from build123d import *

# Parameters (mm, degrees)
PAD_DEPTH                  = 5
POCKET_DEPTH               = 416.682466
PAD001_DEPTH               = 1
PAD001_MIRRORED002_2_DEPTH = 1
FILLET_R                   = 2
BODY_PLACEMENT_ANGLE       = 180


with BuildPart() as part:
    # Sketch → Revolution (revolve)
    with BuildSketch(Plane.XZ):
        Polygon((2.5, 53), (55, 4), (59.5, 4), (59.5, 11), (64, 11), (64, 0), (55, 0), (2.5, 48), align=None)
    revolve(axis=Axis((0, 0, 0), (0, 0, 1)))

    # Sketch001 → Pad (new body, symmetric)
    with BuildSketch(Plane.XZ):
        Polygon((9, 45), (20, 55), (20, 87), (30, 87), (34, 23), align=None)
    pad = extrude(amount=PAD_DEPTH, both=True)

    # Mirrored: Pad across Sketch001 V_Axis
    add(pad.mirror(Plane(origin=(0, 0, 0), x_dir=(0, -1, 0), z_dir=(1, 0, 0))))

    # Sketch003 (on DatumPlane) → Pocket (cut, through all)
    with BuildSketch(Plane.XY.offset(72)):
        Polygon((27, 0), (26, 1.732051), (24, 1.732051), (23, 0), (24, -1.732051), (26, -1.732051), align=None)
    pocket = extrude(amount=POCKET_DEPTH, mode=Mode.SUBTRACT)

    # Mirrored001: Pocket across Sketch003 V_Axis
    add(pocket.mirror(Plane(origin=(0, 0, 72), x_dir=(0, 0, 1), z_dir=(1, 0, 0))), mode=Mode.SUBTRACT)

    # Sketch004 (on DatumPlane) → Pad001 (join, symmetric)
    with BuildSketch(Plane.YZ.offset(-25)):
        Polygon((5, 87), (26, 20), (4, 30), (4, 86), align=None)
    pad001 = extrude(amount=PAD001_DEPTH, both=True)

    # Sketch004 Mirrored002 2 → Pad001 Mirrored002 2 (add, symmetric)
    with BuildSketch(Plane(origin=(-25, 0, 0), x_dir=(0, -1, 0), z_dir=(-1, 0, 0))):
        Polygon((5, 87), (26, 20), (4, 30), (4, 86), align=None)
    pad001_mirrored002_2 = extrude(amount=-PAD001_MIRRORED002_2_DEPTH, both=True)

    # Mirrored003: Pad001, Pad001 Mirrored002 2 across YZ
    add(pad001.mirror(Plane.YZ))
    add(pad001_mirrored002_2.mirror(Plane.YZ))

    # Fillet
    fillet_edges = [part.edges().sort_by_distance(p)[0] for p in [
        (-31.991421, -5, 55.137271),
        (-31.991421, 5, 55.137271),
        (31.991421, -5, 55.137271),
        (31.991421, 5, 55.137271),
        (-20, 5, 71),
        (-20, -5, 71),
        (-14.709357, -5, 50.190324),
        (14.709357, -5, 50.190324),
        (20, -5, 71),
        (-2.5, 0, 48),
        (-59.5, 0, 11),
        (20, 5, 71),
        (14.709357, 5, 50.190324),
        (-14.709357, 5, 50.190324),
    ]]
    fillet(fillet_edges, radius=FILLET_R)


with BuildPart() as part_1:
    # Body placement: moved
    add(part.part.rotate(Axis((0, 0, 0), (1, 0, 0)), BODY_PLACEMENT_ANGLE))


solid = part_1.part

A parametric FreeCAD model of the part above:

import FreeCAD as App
import Part
import Sketcher

V = App.Vector
Q = App.Units.Quantity


def edges_at(feature, points):
    """Names of the edges that pass closest to the given points."""
    edges = feature.Shape.Edges
    near = lambda p: min(range(len(edges)), key=lambda i: edges[i].distToShape(Part.Vertex(*p))[0])
    return sorted({f"Edge{near(p) + 1}" for p in points})


def add_polygon(sketch, points):
    """Adds a closed chain of lines whose ends are joined by coincident constraints."""
    first, n = sketch.GeometryCount, len(points)
    for a, b in zip(points, points[1:] + points[:1]):
        sketch.addGeometry(Part.LineSegment(App.Vector(*a, 0), App.Vector(*b, 0)), False)
    for i in range(n):
        sketch.addConstraint(Sketcher.Constraint("Coincident", first + i, 2, first + (i + 1) % n, 1))

doc = App.newDocument("Part")
body = doc.addObject("PartDesign::Body", "Body")

sketch1 = body.newObject("Sketcher::SketchObject", "Sketch")
sketch1.AttachmentSupport = (doc.getObject("XZ_Plane"), [""])
sketch1.MapMode = "FlatFace"
add_polygon(sketch1, [(55, 4), (2.5, 53), (2.5, 48), (55, 0), (64, 0), (64, 11), (59.5, 11), (59.5, 4)])
sketch1.addConstraint(Sketcher.Constraint("Vertical", 1))
sketch1.addConstraint(Sketcher.Constraint("Horizontal", 3))
sketch1.addConstraint(Sketcher.Constraint("Vertical", 4))
sketch1.addConstraint(Sketcher.Constraint("Horizontal", 5))
sketch1.addConstraint(Sketcher.Constraint("Vertical", 6))
sketch1.addConstraint(Sketcher.Constraint("Horizontal", 7))
sketch1.addConstraint(Sketcher.Constraint("PointOnObject", 2, 2, -1))
sketch1.addConstraint(Sketcher.Constraint("Vertical", 2, 2, 7, 2))
sketch1.addConstraint(Sketcher.Constraint("Equal", 5, 7))
sketch1.addConstraint(Sketcher.Constraint("DistanceX", 3, 1, 3, 2, 9.0))
sketch1.addConstraint(Sketcher.Constraint("DistanceY", 1, 2, 1, 1, 5.0))
sketch1.addConstraint(Sketcher.Constraint("DistanceY", 4, 1, 4, 2, 11.0))
sketch1.addConstraint(Sketcher.Constraint("DistanceY", 6, 2, 6, 1, 7.0))
sketch1.addConstraint(Sketcher.Constraint("DistanceY", -1, 1, 0, 2, 53.0))
sketch1.addConstraint(Sketcher.Constraint("DistanceX", -1, 1, 2, 2, 55.0))
sketch1.addConstraint(Sketcher.Constraint("DistanceX", 1, 2, 5, 2, 57.0))
revolution = body.newObject("PartDesign::Revolution", "Revolution")
revolution.Profile = sketch1
revolution.ReferenceAxis = (sketch1, ["V_Axis"])
revolution.Angle = 360

sketch2 = body.newObject("Sketcher::SketchObject", "Sketch001")
sketch2.AttachmentSupport = (doc.getObject("XZ_Plane"), [""])
sketch2.MapMode = "FlatFace"
add_polygon(sketch2, [(20, 55), (9, 45), (34, 23), (30, 87), (20, 87)])
sketch2.addConstraint(Sketcher.Constraint("Horizontal", 3))
sketch2.addConstraint(Sketcher.Constraint("Vertical", 4))
sketch2.addConstraint(Sketcher.Constraint("DistanceX", 3, 2, 3, 1, 10.0))
sketch2.addConstraint(Sketcher.Constraint("DistanceY", 4, 2, 4, 1, 32.0))
sketch2.addConstraint(Sketcher.Constraint("DistanceX", -1, 1, 0, 2, 9.0))
sketch2.addConstraint(Sketcher.Constraint("DistanceY", -1, 1, 0, 2, 45.0))
sketch2.addConstraint(Sketcher.Constraint("DistanceX", -1, 1, 1, 2, 34.0))
sketch2.addConstraint(Sketcher.Constraint("DistanceY", -1, 1, 1, 2, 23.0))
sketch2.addConstraint(Sketcher.Constraint("DistanceX", -1, 1, 2, 2, 30.0))
sketch2.addConstraint(Sketcher.Constraint("DistanceY", -1, 1, 2, 2, 87.0))
pad1 = body.newObject("PartDesign::Pad", "Pad")
pad1.Profile = sketch2
pad1.Length = 10
pad1.Midplane = True
doc.recompute()

mirrored = body.newObject("PartDesign::Mirrored", "Mirrored")
mirrored.Originals = [pad1]
mirrored.MirrorPlane = (doc.getObject("YZ_Plane"), [""])
body.Tip = mirrored

sketch3 = body.newObject("Sketcher::SketchObject", "Sketch002")
sketch3.AttachmentSupport = (doc.getObject("XY_Plane"), [""])
sketch3.MapMode = "FlatFace"
sketch3.AttachmentOffset = App.Placement(V(0, 0, 72), App.Rotation())
add_polygon(sketch3, [(27, 0), (26, 1.7), (24, 1.7), (23, 0), (24, -1.7), (26, -1.7)])
sketch3.addConstraint(Sketcher.Constraint("Horizontal", 1))
sketch3.addConstraint(Sketcher.Constraint("Horizontal", 4))
sketch3.addConstraint(Sketcher.Constraint("Symmetric", 1, 2, 3, 2, -1))
sketch3.addConstraint(Sketcher.Constraint("PointOnObject", 2, 2, -1))
sketch3.addConstraint(Sketcher.Constraint("PointOnObject", 5, 2, -1))
sketch3.addConstraint(Sketcher.Constraint("Parallel", 0, 3))
sketch3.addConstraint(Sketcher.Constraint("Parallel", 2, 5))
sketch3.addConstraint(Sketcher.Constraint("DistanceX", 1, 2, 1, 1, 2.0))
sketch3.addConstraint(Sketcher.Constraint("Angle", 0, Q("119.999997 deg")))
sketch3.addConstraint(Sketcher.Constraint("Distance", 0, 2.0))
sketch3.addConstraint(Sketcher.Constraint("DistanceX", -1, 1, 0, 2, 26.0))
pocket1 = body.newObject("PartDesign::Pocket", "Pocket")
pocket1.Profile = sketch3
pocket1.Type = "ThroughAll"
pocket1.Reversed = True
doc.recompute()

mirrored2 = body.newObject("PartDesign::Mirrored", "Mirrored001")
mirrored2.Originals = [pocket1]
mirrored2.MirrorPlane = (doc.getObject("YZ_Plane"), [""])
body.Tip = mirrored2

sketch4 = body.newObject("Sketcher::SketchObject", "Sketch003")
sketch4.AttachmentSupport = (doc.getObject("YZ_Plane"), [""])
sketch4.MapMode = "FlatFace"
sketch4.AttachmentOffset = App.Placement(V(0, 0, -25), App.Rotation())
add_polygon(sketch4, [(26, 20), (5, 87), (4, 86), (4, 30)])
sketch4.addConstraint(Sketcher.Constraint("Vertical", 2))
sketch4.addConstraint(Sketcher.Constraint("DistanceY", 2, 2, 2, 1, 56.0))
sketch4.addConstraint(Sketcher.Constraint("Angle", 1, Q("-135 deg")))
sketch4.addConstraint(Sketcher.Constraint("DistanceX", -1, 1, 0, 2, 5.0))
sketch4.addConstraint(Sketcher.Constraint("DistanceY", -1, 1, 0, 2, 87.0))
sketch4.addConstraint(Sketcher.Constraint("DistanceX", -1, 1, 1, 2, 4.0))
sketch4.addConstraint(Sketcher.Constraint("DistanceX", -1, 1, 3, 2, 26.0))
sketch4.addConstraint(Sketcher.Constraint("DistanceY", -1, 1, 3, 2, 20.0))
pad2 = body.newObject("PartDesign::Pad", "Pad001")
pad2.Profile = sketch4
pad2.Length = 2
pad2.Midplane = True

sketch5 = body.newObject("Sketcher::SketchObject", "Sketch004")
sketch5.AttachmentSupport = (doc.getObject("YZ_Plane"), [""])
sketch5.MapMode = "FlatFace"
sketch5.AttachmentOffset = App.Placement(V(0, 0, -25), App.Rotation())
add_polygon(sketch5, [(-26, 20), (-5, 87), (-4, 86), (-4, 30)])
sketch5.addConstraint(Sketcher.Constraint("Vertical", 2))
sketch5.addConstraint(Sketcher.Constraint("DistanceY", 2, 2, 2, 1, 56.0))
sketch5.addConstraint(Sketcher.Constraint("Angle", 1, Q("-45 deg")))
sketch5.addConstraint(Sketcher.Constraint("DistanceX", 0, 2, -1, 1, 5.0))
sketch5.addConstraint(Sketcher.Constraint("DistanceY", -1, 1, 0, 2, 87.0))
sketch5.addConstraint(Sketcher.Constraint("DistanceX", 1, 2, -1, 1, 4.0))
sketch5.addConstraint(Sketcher.Constraint("DistanceX", 3, 2, -1, 1, 26.0))
sketch5.addConstraint(Sketcher.Constraint("DistanceY", -1, 1, 3, 2, 20.0))
pad3 = body.newObject("PartDesign::Pad", "Pad002")
pad3.Profile = sketch5
pad3.Length = 2
pad3.Midplane = True
doc.recompute()

mirrored3 = body.newObject("PartDesign::Mirrored", "Mirrored002")
mirrored3.Originals = [pad2, pad3]
mirrored3.MirrorPlane = (doc.getObject("YZ_Plane"), [""])
body.Tip = mirrored3
doc.recompute()

fillet = body.newObject("PartDesign::Fillet", "Fillet")
fillet.Base = (mirrored3, edges_at(mirrored3, [
    (-31.991, -5, 55.137),
    (-31.991, 5, 55.137),
    (31.991, -5, 55.137),
    (31.991, 5, 55.137),
    (-20, 5, 71),
    (-20, -5, 71),
    (-14.709, -5, 50.19),
    (14.709, -5, 50.19),
    (20, -5, 71),
    (-2.5, 0, 48),
    (-59.5, 0, 11),
    (20, 5, 71),
    (14.709, 5, 50.19),
    (-14.709, 5, 50.19),
]))
fillet.Radius = 2
body2 = doc.addObject("PartDesign::Body", "Body001")
doc.recompute()

body.Placement = App.Placement(V(0, 0, 0), App.Rotation(V(1, 0, 0), 180))
boolean = body2.newObject("PartDesign::Boolean", "Boolean")
boolean.Type = "Fuse"
boolean.addObjects([body])

doc.recompute()
